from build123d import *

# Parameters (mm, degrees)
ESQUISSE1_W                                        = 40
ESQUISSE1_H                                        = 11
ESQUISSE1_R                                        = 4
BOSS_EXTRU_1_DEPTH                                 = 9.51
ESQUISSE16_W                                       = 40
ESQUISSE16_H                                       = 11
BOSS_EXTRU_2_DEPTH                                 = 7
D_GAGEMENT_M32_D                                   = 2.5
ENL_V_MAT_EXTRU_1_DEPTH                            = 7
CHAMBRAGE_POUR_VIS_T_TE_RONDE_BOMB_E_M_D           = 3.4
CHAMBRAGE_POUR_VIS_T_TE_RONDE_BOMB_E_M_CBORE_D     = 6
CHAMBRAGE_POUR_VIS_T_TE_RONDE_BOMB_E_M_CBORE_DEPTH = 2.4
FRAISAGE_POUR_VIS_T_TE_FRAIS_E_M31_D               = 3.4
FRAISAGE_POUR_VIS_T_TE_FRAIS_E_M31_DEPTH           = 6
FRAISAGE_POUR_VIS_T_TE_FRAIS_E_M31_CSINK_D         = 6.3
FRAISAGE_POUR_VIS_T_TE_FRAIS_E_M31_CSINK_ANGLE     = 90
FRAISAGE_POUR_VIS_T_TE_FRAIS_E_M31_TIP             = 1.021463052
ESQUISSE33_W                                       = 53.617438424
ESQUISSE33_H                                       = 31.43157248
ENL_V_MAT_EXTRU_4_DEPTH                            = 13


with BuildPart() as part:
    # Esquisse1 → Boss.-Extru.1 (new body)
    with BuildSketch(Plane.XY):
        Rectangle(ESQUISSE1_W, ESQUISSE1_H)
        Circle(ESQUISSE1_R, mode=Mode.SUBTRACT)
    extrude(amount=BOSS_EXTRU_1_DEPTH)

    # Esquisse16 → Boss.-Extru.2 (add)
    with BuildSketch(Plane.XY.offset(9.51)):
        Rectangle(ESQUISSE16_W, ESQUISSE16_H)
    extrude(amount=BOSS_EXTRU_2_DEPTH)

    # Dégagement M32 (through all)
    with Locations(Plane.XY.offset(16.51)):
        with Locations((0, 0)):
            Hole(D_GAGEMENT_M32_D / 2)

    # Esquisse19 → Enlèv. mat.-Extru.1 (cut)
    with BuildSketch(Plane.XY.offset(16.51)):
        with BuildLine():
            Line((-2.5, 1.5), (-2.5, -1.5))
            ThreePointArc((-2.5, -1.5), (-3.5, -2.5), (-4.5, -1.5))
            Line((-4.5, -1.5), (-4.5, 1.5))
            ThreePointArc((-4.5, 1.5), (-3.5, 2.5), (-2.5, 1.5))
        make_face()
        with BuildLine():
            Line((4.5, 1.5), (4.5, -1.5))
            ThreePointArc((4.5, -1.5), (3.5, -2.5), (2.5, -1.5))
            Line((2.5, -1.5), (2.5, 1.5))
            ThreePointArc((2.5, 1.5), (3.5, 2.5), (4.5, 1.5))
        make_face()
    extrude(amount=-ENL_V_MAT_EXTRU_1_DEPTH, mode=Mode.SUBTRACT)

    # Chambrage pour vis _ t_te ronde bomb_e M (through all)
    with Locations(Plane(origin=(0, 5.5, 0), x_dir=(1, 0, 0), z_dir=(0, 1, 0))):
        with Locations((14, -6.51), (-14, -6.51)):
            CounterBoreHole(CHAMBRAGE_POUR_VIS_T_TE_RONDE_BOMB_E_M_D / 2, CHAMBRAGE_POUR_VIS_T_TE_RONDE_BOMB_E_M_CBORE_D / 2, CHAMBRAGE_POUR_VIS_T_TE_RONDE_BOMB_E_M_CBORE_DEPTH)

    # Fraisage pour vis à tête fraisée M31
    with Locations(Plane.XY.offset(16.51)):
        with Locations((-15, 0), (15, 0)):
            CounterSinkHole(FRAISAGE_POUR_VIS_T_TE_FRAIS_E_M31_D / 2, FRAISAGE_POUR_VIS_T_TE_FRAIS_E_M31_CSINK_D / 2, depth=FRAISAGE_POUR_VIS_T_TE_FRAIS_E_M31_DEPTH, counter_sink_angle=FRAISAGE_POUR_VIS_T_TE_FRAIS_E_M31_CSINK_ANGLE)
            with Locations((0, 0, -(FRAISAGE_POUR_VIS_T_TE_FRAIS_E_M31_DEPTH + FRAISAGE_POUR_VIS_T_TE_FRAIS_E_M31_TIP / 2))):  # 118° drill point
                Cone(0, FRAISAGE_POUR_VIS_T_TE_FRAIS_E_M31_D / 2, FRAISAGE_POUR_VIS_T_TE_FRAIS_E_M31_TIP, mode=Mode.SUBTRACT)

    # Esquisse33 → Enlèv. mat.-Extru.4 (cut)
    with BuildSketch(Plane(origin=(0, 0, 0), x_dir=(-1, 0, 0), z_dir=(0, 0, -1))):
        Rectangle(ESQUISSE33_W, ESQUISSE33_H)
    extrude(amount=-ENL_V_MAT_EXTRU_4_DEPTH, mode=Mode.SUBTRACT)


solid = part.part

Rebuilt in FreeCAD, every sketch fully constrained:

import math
import FreeCAD as App
import Part
import Sketcher

doc = App.newDocument("Part")
body = doc.addObject("PartDesign::Body", "Body")

sketch1 = body.newObject("Sketcher::SketchObject", "Sketch")
sketch1.AttachmentSupport = (doc.getObject("XY_Plane"), [""])
sketch1.MapMode = "FlatFace"
sketch1.addGeometry(Part.LineSegment(App.Vector(-20, 5.5, 0), App.Vector(-20, -5.5, 0)), False)
sketch1.addGeometry(Part.LineSegment(App.Vector(-20, -5.5, 0), App.Vector(20, -5.5, 0)), False)
sketch1.addGeometry(Part.LineSegment(App.Vector(20, -5.5, 0), App.Vector(20, 5.5, 0)), False)
sketch1.addGeometry(Part.LineSegment(App.Vector(20, 5.5, 0), App.Vector(-20, 5.5, 0)), False)
sketch1.addGeometry(Part.Circle(App.Vector(0, 0, 0), App.Vector(0, 0, 1), 4), False)
sketch1.addConstraint(Sketcher.Constraint("Coincident", 0, 2, 1, 1))
sketch1.addConstraint(Sketcher.Constraint("Coincident", 1, 2, 2, 1))
sketch1.addConstraint(Sketcher.Constraint("Coincident", 2, 2, 3, 1))
sketch1.addConstraint(Sketcher.Constraint("Coincident", 3, 2, 0, 1))
sketch1.addConstraint(Sketcher.Constraint("Vertical", 0))
sketch1.addConstraint(Sketcher.Constraint("Horizontal", 1))
sketch1.addConstraint(Sketcher.Constraint("Vertical", 2))
sketch1.addConstraint(Sketcher.Constraint("Horizontal", 3))
sketch1.addConstraint(Sketcher.Constraint("Coincident", 4, 3, -1, 1))
sketch1.addConstraint(Sketcher.Constraint("Symmetric", 0, 2, 2, 2, -1, 1))
sketch1.addConstraint(Sketcher.Constraint("Diameter", 4, 8.0))
sketch1.addConstraint(Sketcher.Constraint("DistanceX", 1, 1, 1, 2, 40.0))
sketch1.addConstraint(Sketcher.Constraint("DistanceY", 0, 2, 0, 1, 11.0))
pad1 = body.newObject("PartDesign::Pad", "Pad")
pad1.Profile = sketch1
pad1.Length = 9.51

sketch2 = body.newObject("Sketcher::SketchObject", "Sketch001")
sketch2.AttachmentSupport = (doc.getObject("XY_Plane"), [""])
sketch2.MapMode = "FlatFace"
sketch2.AttachmentOffset = App.Placement(App.Vector(0, 0, 9.51), App.Rotation())
sketch2.addGeometry(Part.LineSegment(App.Vector(-20, 6, 0), App.Vector(-20, -6, 0)), False)
sketch2.addGeometry(Part.LineSegment(App.Vector(-20, -6, 0), App.Vector(20, -6, 0)), False)
sketch2.addGeometry(Part.LineSegment(App.Vector(20, -6, 0), App.Vector(20, 6, 0)), False)
sketch2.addGeometry(Part.LineSegment(App.Vector(20, 6, 0), App.Vector(-20, 6, 0)), False)
sketch2.addConstraint(Sketcher.Constraint("Coincident", 0, 2, 1, 1))
sketch2.addConstraint(Sketcher.Constraint("Coincident", 1, 2, 2, 1))
sketch2.addConstraint(Sketcher.Constraint("Coincident", 2, 2, 3, 1))
sketch2.addConstraint(Sketcher.Constraint("Coincident", 3, 2, 0, 1))
sketch2.addConstraint(Sketcher.Constraint("Vertical", 0))
sketch2.addConstraint(Sketcher.Constraint("Horizontal", 1))
sketch2.addConstraint(Sketcher.Constraint("Vertical", 2))
sketch2.addConstraint(Sketcher.Constraint("Horizontal", 3))
sketch2.addConstraint(Sketcher.Constraint("Symmetric", 0, 2, 2, 2, -1, 1))
sketch2.addConstraint(Sketcher.Constraint("DistanceX", 1, 1, 1, 2, 40.0))
sketch2.addConstraint(Sketcher.Constraint("DistanceY", 0, 2, 0, 1, 11.0))
pad2 = body.newObject("PartDesign::Pad", "Pad001")
pad2.Profile = sketch2
pad2.Length = 7

sketch3 = body.newObject("Sketcher::SketchObject", "Sketch002")
sketch3.AttachmentSupport = (doc.getObject("XY_Plane"), [""])
sketch3.MapMode = "FlatFace"
sketch3.AttachmentOffset = App.Placement(App.Vector(0, 0, 16.51), App.Rotation())
sketch3.addGeometry(Part.Circle(App.Vector(0, 0, 0), App.Vector(0, 0, 1), 1.2), False)
sketch3.addConstraint(Sketcher.Constraint("Coincident", 0, 3, -1, 1))
sketch3.addConstraint(Sketcher.Constraint("Diameter", 0, 2.5))
doc.recompute()
hole = body.newObject("PartDesign::Hole", "Hole")
hole.Profile = sketch3
hole.ThreadType = "None"
hole.Diameter = 2.5
hole.DepthType = "ThroughAll"

sketch4 = body.newObject("Sketcher::SketchObject", "Sketch003")
sketch4.AttachmentSupport = (doc.getObject("XY_Plane"), [""])
sketch4.MapMode = "FlatFace"
sketch4.AttachmentOffset = App.Placement(App.Vector(0, 0, 16.51), App.Rotation())
sketch4.addGeometry(Part.LineSegment(App.Vector(-2.5, -1.5, 0), App.Vector(-2.5, 1.5, 0)), False)
sketch4.addGeometry(Part.ArcOfCircle(Part.Circle(App.Vector(-3.5, 1.5, 0), App.Vector(0, 0, 1), 1), math.radians(0), math.radians(180)), False)
sketch4.addGeometry(Part.LineSegment(App.Vector(-4.5, 1.5, 0), App.Vector(-4.5, -1.5, 0)), False)
sketch4.addGeometry(Part.ArcOfCircle(Part.Circle(App.Vector(-3.5, -1.5, 0), App.Vector(0, 0, 1), 1), math.radians(180), math.radians(360)), False)
sketch4.addGeometry(Part.LineSegment(App.Vector(4.5, -1.5, 0), App.Vector(4.5, 1.5, 0)), False)
sketch4.addGeometry(Part.ArcOfCircle(Part.Circle(App.Vector(3.5, 1.5, 0), App.Vector(0, 0, 1), 1), math.radians(0), math.radians(180)), False)
sketch4.addGeometry(Part.LineSegment(App.Vector(2.5, 1.5, 0), App.Vector(2.5, -1.5, 0)), False)
sketch4.addGeometry(Part.ArcOfCircle(Part.Circle(App.Vector(3.5, -1.5, 0), App.Vector(0, 0, 1), 1), math.radians(180), math.radians(360)), False)
sketch4.addConstraint(Sketcher.Constraint("Tangent", 0, 2, 1, 1))
sketch4.addConstraint(Sketcher.Constraint("Tangent", 1, 2, 2, 1))
sketch4.addConstraint(Sketcher.Constraint("Tangent", 2, 2, 3, 1))
sketch4.addConstraint(Sketcher.Constraint("Tangent", 3, 2, 0, 1))
sketch4.addConstraint(Sketcher.Constraint("Tangent", 4, 2, 5, 1))
sketch4.addConstraint(Sketcher.Constraint("Tangent", 5, 2, 6, 1))
sketch4.addConstraint(Sketcher.Constraint("Tangent", 6, 2, 7, 1))
sketch4.addConstraint(Sketcher.Constraint("Tangent", 7, 2, 4, 1))
sketch4.addConstraint(Sketcher.Constraint("Vertical", 0))
sketch4.addConstraint(Sketcher.Constraint("Vertical", 2))
sketch4.addConstraint(Sketcher.Constraint("Vertical", 4))
sketch4.addConstraint(Sketcher.Constraint("Vertical", 6))
sketch4.addConstraint(Sketcher.Constraint("Equal", 3, 5))
sketch4.addConstraint(Sketcher.Constraint("Symmetric", 3, 3, 5, 3, -1, 1))
sketch4.addConstraint(Sketcher.Constraint("Horizontal", 1, 3, 5, 3))
sketch4.addConstraint(Sketcher.Constraint("Horizontal", 3, 3, 7, 3))
sketch4.addConstraint(Sketcher.Constraint("Radius", 1, 1.0))
sketch4.addConstraint(Sketcher.Constraint("DistanceY", 0, 1, 0, 2, 3.0))
sketch4.addConstraint(Sketcher.Constraint("DistanceX", 1, 3, 5, 3, 7.0))
pocket1 = body.newObject("PartDesign::Pocket", "Pocket")
pocket1.Profile = sketch4
pocket1.Length = 7

sketch5 = body.newObject("Sketcher::SketchObject", "Sketch004")
sketch5.AttachmentSupport = (doc.getObject("XZ_Plane"), [""])
sketch5.MapMode = "FlatFace"
sketch5.AttachmentOffset = App.Placement(App.Vector(0, 0, -5.5), App.Rotation())
sketch5.addGeometry(Part.Circle(App.Vector(14, 6.5, 0), App.Vector(0, 0, 1), 1.7), False)
sketch5.addGeometry(Part.Circle(App.Vector(-14, 6.5, 0), App.Vector(0, 0, 1), 1.7), False)
sketch5.addConstraint(Sketcher.Constraint("Equal", 0, 1))
sketch5.addConstraint(Sketcher.Constraint("Symmetric", 0, 3, 1, 3, -2))
sketch5.addConstraint(Sketcher.Constraint("Diameter", 0, 3.4))
sketch5.addConstraint(Sketcher.Constraint("DistanceX", -1, 1, 0, 3, 14.0))
sketch5.addConstraint(Sketcher.Constraint("DistanceY", -1, 1, 0, 3, 6.51))
doc.recompute()
hole2 = body.newObject("PartDesign::Hole", "Hole001")
hole2.Profile = sketch5
hole2.ThreadType = "None"
hole2.Diameter = 3.4
hole2.DepthType = "ThroughAll"
hole2.HoleCutType = "Counterbore"
hole2.HoleCutDiameter = 6
hole2.HoleCutDepth = 2.4
hole2.Reversed = True

sketch6 = body.newObject("Sketcher::SketchObject", "Sketch005")
sketch6.AttachmentSupport = (doc.getObject("XY_Plane"), [""])
sketch6.MapMode = "FlatFace"
sketch6.AttachmentOffset = App.Placement(App.Vector(0, 0, 16.51), App.Rotation())
sketch6.addGeometry(Part.Circle(App.Vector(-15, 0, 0), App.Vector(0, 0, 1), 1.7), False)
sketch6.addGeometry(Part.Circle(App.Vector(15, 0, 0), App.Vector(0, 0, 1), 1.7), False)
sketch6.addConstraint(Sketcher.Constraint("Equal", 0, 1))
sketch6.addConstraint(Sketcher.Constraint("Symmetric", 0, 3, 1, 3, -1, 1))
sketch6.addConstraint(Sketcher.Constraint("PointOnObject", 0, 3, -1))
sketch6.addConstraint(Sketcher.Constraint("Diameter", 0, 3.4))
sketch6.addConstraint(Sketcher.Constraint("DistanceX", 0, 3, -1, 1, 15.0))
doc.recompute()
hole3 = body.newObject("PartDesign::Hole", "Hole002")
hole3.Profile = sketch6
hole3.ThreadType = "None"
hole3.Diameter = 3.4
hole3.DepthType = "Dimension"
hole3.Depth = 6
hole3.DrillPoint = "Angled"
hole3.DrillPointAngle = 118
hole3.HoleCutType = "Countersink"
hole3.HoleCutDiameter = 6.3
hole3.HoleCutCountersinkAngle = 90

sketch7 = body.newObject("Sketcher::SketchObject", "Sketch006")
sketch7.AttachmentSupport = (doc.getObject("XY_Plane"), [""])
sketch7.MapMode = "FlatFace"
sketch7.addGeometry(Part.LineSegment(App.Vector(27, 16, 0), App.Vector(27, -16, 0)), False)
sketch7.addGeometry(Part.LineSegment(App.Vector(27, -16, 0), App.Vector(-27, -16, 0)), False)
sketch7.addGeometry(Part.LineSegment(App.Vector(-27, -16, 0), App.Vector(-27, 16, 0)), False)
sketch7.addGeometry(Part.LineSegment(App.Vector(-27, 16, 0), App.Vector(27, 16, 0)), False)
sketch7.addConstraint(Sketcher.Constraint("Coincident", 0, 2, 1, 1))
sketch7.addConstraint(Sketcher.Constraint("Coincident", 1, 2, 2, 1))
sketch7.addConstraint(Sketcher.Constraint("Coincident", 2, 2, 3, 1))
sketch7.addConstraint(Sketcher.Constraint("Coincident", 3, 2, 0, 1))
sketch7.addConstraint(Sketcher.Constraint("Vertical", 0))
sketch7.addConstraint(Sketcher.Constraint("Horizontal", 1))
sketch7.addConstraint(Sketcher.Constraint("Vertical", 2))
sketch7.addConstraint(Sketcher.Constraint("Horizontal", 3))
sketch7.addConstraint(Sketcher.Constraint("Symmetric", 0, 2, 2, 2, -1, 1))
sketch7.addConstraint(Sketcher.Constraint("DistanceX", 1, 2, 1, 1, 53.617438))
sketch7.addConstraint(Sketcher.Constraint("DistanceY", 0, 2, 0, 1, 31.431572))
pocket2 = body.newObject("PartDesign::Pocket", "Pocket001")
pocket2.Profile = sketch7
pocket2.Length = 13
pocket2.Reversed = True

doc.recompute()
